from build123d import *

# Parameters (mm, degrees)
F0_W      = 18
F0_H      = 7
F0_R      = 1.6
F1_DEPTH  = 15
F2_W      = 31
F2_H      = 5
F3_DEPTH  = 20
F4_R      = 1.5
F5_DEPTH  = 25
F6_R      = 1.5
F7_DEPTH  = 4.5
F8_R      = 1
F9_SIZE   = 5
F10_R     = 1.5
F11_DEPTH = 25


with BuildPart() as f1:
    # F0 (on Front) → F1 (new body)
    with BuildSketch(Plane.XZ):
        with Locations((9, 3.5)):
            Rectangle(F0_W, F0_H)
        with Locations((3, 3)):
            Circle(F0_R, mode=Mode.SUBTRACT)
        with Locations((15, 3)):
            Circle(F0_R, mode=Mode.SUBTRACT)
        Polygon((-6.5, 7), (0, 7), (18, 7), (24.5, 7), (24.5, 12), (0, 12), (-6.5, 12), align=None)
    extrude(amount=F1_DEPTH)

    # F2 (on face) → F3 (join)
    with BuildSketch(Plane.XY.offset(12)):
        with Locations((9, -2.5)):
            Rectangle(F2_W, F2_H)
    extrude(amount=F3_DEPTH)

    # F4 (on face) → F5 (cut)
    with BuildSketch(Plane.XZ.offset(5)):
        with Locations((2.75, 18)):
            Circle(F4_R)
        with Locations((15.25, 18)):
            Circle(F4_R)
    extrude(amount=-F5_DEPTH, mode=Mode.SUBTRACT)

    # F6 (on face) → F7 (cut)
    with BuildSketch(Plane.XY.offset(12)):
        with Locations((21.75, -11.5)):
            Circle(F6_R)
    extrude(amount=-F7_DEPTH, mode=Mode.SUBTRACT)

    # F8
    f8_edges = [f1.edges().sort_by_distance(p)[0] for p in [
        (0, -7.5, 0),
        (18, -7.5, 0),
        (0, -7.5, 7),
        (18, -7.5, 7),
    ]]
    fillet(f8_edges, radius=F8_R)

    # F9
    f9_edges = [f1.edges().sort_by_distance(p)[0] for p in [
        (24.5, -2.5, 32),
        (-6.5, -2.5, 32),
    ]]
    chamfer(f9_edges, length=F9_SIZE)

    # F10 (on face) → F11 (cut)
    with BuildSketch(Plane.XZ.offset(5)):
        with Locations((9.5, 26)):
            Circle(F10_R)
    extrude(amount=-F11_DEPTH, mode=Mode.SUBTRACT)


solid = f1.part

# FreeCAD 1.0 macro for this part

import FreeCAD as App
import Part
import Sketcher

V = App.Vector
Q = App.Units.Quantity


def edges_at(feature, points):
    """Names of the edges that pass closest to the given points."""
    edges = feature.Shape.Edges
    near = lambda p: min(range(len(edges)), key=lambda i: edges[i].distToShape(Part.Vertex(*p))[0])
    return sorted({f"Edge{near(p) + 1}" for p in points})


def add_polygon(sketch, points):
    """Adds a closed chain of lines whose ends are joined by coincident constraints."""
    first, n = sketch.GeometryCount, len(points)
    for a, b in zip(points, points[1:] + points[:1]):
        sketch.addGeometry(Part.LineSegment(App.Vector(*a, 0), App.Vector(*b, 0)), False)
    for i in range(n):
        sketch.addConstraint(Sketcher.Constraint("Coincident", first + i, 2, first + (i + 1) % n, 1))

doc = App.newDocument("Part")
body = doc.addObject("PartDesign::Body", "Body")

sketch1 = doc.addObject("Sketcher::SketchObject", "Sketch")
body.addObject(sketch1)
sketch1.AttachmentSupport = (doc.XZ_Plane, [""])
sketch1.MapMode = "FlatFace"
add_polygon(sketch1, [(0, 7), (0, 0), (18, 0), (18, 7), (24.5, 7), (24.5, 12), (-6.5, 12), (-6.5, 7)])
sketch1.addGeometry(Part.Circle(V(3, 3, 0), V(0, 0, 1), 1.6), False)
sketch1.addGeometry(Part.Circle(V(15, 3, 0), V(0, 0, 1), 1.6), False)
sketch1.addConstraint([
    Sketcher.Constraint("Vertical", 0),
    Sketcher.Constraint("Horizontal", 1),
    Sketcher.Constraint("Vertical", 2),
    Sketcher.Constraint("Horizontal", 3),
    Sketcher.Constraint("Vertical", 4),
    Sketcher.Constraint("Horizontal", 5),
    Sketcher.Constraint("Vertical", 6),
    Sketcher.Constraint("Horizontal", 7),
    Sketcher.Constraint("Coincident", 0, 2, -1, 1),
    Sketcher.Constraint("Equal", 8, 9),
    Sketcher.Constraint("Horizontal", 8, 3, 9, 3),
    Sketcher.Constraint("Horizontal", 3, 2, 6, 2),
    Sketcher.Constraint("Equal", 3, 7),
    Sketcher.Constraint("Diameter", 8, Q("3.2 mm")),
    Sketcher.Constraint("DistanceX", 1, 1, 1, 2, Q("18 mm")),
    Sketcher.Constraint("DistanceX", 5, 2, 5, 1, Q("31 mm")),
    Sketcher.Constraint("DistanceY", 0, 2, 0, 1, Q("7 mm")),
    Sketcher.Constraint("DistanceY", 4, 1, 4, 2, Q("5 mm")),
    Sketcher.Constraint("DistanceX", -1, 1, 8, 3, Q("3 mm")),
    Sketcher.Constraint("DistanceY", -1, 1, 8, 3, Q("3 mm")),
    Sketcher.Constraint("DistanceX", -1, 1, 9, 3, Q("15 mm")),
])
pad1 = doc.addObject("PartDesign::Pad", "Pad")
body.addObject(pad1)
pad1.Profile = sketch1
pad1.Length = 15

sketch2 = doc.addObject("Sketcher::SketchObject", "Sketch001")
body.addObject(sketch2)
sketch2.AttachmentSupport = (doc.XY_Plane, [""])
sketch2.MapMode = "FlatFace"
sketch2.AttachmentOffset = App.Placement(V(0, 0, 12), App.Rotation())
add_polygon(sketch2, [(-6.5, 0), (-6.5, -5), (24.5, -5), (24.5, 0)])
sketch2.addConstraint([
    Sketcher.Constraint("Vertical", 0),
    Sketcher.Constraint("Horizontal", 1),
    Sketcher.Constraint("Vertical", 2),
    Sketcher.Constraint("Horizontal", 3),
    Sketcher.Constraint("PointOnObject", 2, 2, -1),
    Sketcher.Constraint("DistanceX", 1, 1, 1, 2, Q("31 mm")),
    Sketcher.Constraint("DistanceY", 0, 2, 0, 1, Q("5 mm")),
    Sketcher.Constraint("DistanceX", 0, 2, -1, 1, Q("6.5 mm")),
])
pad2 = doc.addObject("PartDesign::Pad", "Pad001")
body.addObject(pad2)
pad2.Profile = sketch2
pad2.Length = 20

sketch3 = doc.addObject("Sketcher::SketchObject", "Sketch002")
body.addObject(sketch3)
sketch3.AttachmentSupport = (doc.XZ_Plane, [""])
sketch3.MapMode = "FlatFace"
sketch3.AttachmentOffset = App.Placement(V(0, 0, 5), App.Rotation())
sketch3.addGeometry([
    Part.Circle(V(2.75, 18, 0), V(0, 0, 1), 1.5),
    Part.Circle(V(15.25, 18, 0), V(0, 0, 1), 1.5),
], False)
sketch3.addConstraint([
    Sketcher.Constraint("Equal", 0, 1),
    Sketcher.Constraint("Horizontal", 0, 3, 1, 3),
    Sketcher.Constraint("Diameter", 0, Q("3 mm")),
    Sketcher.Constraint("DistanceY", -1, 1, 0, 3, Q("18 mm")),
    Sketcher.Constraint("DistanceX", 0, 3, 1, 3, Q("12.5 mm")),
    Sketcher.Constraint("DistanceX", -1, 1, 0, 3, Q("2.75 mm")),
])
pocket1 = doc.addObject("PartDesign::Pocket", "Pocket")
body.addObject(pocket1)
pocket1.Profile = sketch3
pocket1.Length = 25

sketch4 = doc.addObject("Sketcher::SketchObject", "Sketch003")
body.addObject(sketch4)
sketch4.AttachmentSupport = (doc.XY_Plane, [""])
sketch4.MapMode = "FlatFace"
sketch4.AttachmentOffset = App.Placement(V(0, 0, 12), App.Rotation())
sketch4.addGeometry(Part.Circle(V(21.75, -11.5, 0), V(0, 0, 1), 1.5), False)
sketch4.addConstraint([
    Sketcher.Constraint("Diameter", 0, Q("3 mm")),
    Sketcher.Constraint("DistanceY", 0, 3, -1, 1, Q("11.5 mm")),
    Sketcher.Constraint("DistanceX", -1, 1, 0, 3, Q("21.75 mm")),
])
pocket2 = doc.addObject("PartDesign::Pocket", "Pocket001")
body.addObject(pocket2)
pocket2.Profile = sketch4
pocket2.Length = 4.5
doc.recompute()

fillet = doc.addObject("PartDesign::Fillet", "Fillet")
body.addObject(fillet)
fillet.Base = (pocket2, edges_at(pocket2, [
    (0, -7.5, 0),
    (18, -7.5, 0),
    (0, -7.5, 7),
    (18, -7.5, 7),
]))
fillet.Radius = 1
doc.recompute()

chamfer = doc.addObject("PartDesign::Chamfer", "Chamfer")
body.addObject(chamfer)
chamfer.Base = (fillet, edges_at(fillet, [(24.5, -2.5, 32), (-6.5, -2.5, 32)]))
chamfer.Size = 5

sketch5 = doc.addObject("Sketcher::SketchObject", "Sketch004")
body.addObject(sketch5)
sketch5.AttachmentSupport = (doc.XZ_Plane, [""])
sketch5.MapMode = "FlatFace"
sketch5.AttachmentOffset = App.Placement(V(0, 0, 5), App.Rotation())
sketch5.addGeometry(Part.Circle(V(9.5, 26, 0), V(0, 0, 1), 1.5), False)
sketch5.addConstraint([
    Sketcher.Constraint("Diameter", 0, Q("3 mm")),
    Sketcher.Constraint("DistanceY", -1, 1, 0, 3, Q("26 mm")),
    Sketcher.Constraint("DistanceX", -1, 1, 0, 3, Q("9.5 mm")),
])
pocket3 = doc.addObject("PartDesign::Pocket", "Pocket002")
body.addObject(pocket3)
pocket3.Profile = sketch5
pocket3.Length = 25

doc.recompute()
